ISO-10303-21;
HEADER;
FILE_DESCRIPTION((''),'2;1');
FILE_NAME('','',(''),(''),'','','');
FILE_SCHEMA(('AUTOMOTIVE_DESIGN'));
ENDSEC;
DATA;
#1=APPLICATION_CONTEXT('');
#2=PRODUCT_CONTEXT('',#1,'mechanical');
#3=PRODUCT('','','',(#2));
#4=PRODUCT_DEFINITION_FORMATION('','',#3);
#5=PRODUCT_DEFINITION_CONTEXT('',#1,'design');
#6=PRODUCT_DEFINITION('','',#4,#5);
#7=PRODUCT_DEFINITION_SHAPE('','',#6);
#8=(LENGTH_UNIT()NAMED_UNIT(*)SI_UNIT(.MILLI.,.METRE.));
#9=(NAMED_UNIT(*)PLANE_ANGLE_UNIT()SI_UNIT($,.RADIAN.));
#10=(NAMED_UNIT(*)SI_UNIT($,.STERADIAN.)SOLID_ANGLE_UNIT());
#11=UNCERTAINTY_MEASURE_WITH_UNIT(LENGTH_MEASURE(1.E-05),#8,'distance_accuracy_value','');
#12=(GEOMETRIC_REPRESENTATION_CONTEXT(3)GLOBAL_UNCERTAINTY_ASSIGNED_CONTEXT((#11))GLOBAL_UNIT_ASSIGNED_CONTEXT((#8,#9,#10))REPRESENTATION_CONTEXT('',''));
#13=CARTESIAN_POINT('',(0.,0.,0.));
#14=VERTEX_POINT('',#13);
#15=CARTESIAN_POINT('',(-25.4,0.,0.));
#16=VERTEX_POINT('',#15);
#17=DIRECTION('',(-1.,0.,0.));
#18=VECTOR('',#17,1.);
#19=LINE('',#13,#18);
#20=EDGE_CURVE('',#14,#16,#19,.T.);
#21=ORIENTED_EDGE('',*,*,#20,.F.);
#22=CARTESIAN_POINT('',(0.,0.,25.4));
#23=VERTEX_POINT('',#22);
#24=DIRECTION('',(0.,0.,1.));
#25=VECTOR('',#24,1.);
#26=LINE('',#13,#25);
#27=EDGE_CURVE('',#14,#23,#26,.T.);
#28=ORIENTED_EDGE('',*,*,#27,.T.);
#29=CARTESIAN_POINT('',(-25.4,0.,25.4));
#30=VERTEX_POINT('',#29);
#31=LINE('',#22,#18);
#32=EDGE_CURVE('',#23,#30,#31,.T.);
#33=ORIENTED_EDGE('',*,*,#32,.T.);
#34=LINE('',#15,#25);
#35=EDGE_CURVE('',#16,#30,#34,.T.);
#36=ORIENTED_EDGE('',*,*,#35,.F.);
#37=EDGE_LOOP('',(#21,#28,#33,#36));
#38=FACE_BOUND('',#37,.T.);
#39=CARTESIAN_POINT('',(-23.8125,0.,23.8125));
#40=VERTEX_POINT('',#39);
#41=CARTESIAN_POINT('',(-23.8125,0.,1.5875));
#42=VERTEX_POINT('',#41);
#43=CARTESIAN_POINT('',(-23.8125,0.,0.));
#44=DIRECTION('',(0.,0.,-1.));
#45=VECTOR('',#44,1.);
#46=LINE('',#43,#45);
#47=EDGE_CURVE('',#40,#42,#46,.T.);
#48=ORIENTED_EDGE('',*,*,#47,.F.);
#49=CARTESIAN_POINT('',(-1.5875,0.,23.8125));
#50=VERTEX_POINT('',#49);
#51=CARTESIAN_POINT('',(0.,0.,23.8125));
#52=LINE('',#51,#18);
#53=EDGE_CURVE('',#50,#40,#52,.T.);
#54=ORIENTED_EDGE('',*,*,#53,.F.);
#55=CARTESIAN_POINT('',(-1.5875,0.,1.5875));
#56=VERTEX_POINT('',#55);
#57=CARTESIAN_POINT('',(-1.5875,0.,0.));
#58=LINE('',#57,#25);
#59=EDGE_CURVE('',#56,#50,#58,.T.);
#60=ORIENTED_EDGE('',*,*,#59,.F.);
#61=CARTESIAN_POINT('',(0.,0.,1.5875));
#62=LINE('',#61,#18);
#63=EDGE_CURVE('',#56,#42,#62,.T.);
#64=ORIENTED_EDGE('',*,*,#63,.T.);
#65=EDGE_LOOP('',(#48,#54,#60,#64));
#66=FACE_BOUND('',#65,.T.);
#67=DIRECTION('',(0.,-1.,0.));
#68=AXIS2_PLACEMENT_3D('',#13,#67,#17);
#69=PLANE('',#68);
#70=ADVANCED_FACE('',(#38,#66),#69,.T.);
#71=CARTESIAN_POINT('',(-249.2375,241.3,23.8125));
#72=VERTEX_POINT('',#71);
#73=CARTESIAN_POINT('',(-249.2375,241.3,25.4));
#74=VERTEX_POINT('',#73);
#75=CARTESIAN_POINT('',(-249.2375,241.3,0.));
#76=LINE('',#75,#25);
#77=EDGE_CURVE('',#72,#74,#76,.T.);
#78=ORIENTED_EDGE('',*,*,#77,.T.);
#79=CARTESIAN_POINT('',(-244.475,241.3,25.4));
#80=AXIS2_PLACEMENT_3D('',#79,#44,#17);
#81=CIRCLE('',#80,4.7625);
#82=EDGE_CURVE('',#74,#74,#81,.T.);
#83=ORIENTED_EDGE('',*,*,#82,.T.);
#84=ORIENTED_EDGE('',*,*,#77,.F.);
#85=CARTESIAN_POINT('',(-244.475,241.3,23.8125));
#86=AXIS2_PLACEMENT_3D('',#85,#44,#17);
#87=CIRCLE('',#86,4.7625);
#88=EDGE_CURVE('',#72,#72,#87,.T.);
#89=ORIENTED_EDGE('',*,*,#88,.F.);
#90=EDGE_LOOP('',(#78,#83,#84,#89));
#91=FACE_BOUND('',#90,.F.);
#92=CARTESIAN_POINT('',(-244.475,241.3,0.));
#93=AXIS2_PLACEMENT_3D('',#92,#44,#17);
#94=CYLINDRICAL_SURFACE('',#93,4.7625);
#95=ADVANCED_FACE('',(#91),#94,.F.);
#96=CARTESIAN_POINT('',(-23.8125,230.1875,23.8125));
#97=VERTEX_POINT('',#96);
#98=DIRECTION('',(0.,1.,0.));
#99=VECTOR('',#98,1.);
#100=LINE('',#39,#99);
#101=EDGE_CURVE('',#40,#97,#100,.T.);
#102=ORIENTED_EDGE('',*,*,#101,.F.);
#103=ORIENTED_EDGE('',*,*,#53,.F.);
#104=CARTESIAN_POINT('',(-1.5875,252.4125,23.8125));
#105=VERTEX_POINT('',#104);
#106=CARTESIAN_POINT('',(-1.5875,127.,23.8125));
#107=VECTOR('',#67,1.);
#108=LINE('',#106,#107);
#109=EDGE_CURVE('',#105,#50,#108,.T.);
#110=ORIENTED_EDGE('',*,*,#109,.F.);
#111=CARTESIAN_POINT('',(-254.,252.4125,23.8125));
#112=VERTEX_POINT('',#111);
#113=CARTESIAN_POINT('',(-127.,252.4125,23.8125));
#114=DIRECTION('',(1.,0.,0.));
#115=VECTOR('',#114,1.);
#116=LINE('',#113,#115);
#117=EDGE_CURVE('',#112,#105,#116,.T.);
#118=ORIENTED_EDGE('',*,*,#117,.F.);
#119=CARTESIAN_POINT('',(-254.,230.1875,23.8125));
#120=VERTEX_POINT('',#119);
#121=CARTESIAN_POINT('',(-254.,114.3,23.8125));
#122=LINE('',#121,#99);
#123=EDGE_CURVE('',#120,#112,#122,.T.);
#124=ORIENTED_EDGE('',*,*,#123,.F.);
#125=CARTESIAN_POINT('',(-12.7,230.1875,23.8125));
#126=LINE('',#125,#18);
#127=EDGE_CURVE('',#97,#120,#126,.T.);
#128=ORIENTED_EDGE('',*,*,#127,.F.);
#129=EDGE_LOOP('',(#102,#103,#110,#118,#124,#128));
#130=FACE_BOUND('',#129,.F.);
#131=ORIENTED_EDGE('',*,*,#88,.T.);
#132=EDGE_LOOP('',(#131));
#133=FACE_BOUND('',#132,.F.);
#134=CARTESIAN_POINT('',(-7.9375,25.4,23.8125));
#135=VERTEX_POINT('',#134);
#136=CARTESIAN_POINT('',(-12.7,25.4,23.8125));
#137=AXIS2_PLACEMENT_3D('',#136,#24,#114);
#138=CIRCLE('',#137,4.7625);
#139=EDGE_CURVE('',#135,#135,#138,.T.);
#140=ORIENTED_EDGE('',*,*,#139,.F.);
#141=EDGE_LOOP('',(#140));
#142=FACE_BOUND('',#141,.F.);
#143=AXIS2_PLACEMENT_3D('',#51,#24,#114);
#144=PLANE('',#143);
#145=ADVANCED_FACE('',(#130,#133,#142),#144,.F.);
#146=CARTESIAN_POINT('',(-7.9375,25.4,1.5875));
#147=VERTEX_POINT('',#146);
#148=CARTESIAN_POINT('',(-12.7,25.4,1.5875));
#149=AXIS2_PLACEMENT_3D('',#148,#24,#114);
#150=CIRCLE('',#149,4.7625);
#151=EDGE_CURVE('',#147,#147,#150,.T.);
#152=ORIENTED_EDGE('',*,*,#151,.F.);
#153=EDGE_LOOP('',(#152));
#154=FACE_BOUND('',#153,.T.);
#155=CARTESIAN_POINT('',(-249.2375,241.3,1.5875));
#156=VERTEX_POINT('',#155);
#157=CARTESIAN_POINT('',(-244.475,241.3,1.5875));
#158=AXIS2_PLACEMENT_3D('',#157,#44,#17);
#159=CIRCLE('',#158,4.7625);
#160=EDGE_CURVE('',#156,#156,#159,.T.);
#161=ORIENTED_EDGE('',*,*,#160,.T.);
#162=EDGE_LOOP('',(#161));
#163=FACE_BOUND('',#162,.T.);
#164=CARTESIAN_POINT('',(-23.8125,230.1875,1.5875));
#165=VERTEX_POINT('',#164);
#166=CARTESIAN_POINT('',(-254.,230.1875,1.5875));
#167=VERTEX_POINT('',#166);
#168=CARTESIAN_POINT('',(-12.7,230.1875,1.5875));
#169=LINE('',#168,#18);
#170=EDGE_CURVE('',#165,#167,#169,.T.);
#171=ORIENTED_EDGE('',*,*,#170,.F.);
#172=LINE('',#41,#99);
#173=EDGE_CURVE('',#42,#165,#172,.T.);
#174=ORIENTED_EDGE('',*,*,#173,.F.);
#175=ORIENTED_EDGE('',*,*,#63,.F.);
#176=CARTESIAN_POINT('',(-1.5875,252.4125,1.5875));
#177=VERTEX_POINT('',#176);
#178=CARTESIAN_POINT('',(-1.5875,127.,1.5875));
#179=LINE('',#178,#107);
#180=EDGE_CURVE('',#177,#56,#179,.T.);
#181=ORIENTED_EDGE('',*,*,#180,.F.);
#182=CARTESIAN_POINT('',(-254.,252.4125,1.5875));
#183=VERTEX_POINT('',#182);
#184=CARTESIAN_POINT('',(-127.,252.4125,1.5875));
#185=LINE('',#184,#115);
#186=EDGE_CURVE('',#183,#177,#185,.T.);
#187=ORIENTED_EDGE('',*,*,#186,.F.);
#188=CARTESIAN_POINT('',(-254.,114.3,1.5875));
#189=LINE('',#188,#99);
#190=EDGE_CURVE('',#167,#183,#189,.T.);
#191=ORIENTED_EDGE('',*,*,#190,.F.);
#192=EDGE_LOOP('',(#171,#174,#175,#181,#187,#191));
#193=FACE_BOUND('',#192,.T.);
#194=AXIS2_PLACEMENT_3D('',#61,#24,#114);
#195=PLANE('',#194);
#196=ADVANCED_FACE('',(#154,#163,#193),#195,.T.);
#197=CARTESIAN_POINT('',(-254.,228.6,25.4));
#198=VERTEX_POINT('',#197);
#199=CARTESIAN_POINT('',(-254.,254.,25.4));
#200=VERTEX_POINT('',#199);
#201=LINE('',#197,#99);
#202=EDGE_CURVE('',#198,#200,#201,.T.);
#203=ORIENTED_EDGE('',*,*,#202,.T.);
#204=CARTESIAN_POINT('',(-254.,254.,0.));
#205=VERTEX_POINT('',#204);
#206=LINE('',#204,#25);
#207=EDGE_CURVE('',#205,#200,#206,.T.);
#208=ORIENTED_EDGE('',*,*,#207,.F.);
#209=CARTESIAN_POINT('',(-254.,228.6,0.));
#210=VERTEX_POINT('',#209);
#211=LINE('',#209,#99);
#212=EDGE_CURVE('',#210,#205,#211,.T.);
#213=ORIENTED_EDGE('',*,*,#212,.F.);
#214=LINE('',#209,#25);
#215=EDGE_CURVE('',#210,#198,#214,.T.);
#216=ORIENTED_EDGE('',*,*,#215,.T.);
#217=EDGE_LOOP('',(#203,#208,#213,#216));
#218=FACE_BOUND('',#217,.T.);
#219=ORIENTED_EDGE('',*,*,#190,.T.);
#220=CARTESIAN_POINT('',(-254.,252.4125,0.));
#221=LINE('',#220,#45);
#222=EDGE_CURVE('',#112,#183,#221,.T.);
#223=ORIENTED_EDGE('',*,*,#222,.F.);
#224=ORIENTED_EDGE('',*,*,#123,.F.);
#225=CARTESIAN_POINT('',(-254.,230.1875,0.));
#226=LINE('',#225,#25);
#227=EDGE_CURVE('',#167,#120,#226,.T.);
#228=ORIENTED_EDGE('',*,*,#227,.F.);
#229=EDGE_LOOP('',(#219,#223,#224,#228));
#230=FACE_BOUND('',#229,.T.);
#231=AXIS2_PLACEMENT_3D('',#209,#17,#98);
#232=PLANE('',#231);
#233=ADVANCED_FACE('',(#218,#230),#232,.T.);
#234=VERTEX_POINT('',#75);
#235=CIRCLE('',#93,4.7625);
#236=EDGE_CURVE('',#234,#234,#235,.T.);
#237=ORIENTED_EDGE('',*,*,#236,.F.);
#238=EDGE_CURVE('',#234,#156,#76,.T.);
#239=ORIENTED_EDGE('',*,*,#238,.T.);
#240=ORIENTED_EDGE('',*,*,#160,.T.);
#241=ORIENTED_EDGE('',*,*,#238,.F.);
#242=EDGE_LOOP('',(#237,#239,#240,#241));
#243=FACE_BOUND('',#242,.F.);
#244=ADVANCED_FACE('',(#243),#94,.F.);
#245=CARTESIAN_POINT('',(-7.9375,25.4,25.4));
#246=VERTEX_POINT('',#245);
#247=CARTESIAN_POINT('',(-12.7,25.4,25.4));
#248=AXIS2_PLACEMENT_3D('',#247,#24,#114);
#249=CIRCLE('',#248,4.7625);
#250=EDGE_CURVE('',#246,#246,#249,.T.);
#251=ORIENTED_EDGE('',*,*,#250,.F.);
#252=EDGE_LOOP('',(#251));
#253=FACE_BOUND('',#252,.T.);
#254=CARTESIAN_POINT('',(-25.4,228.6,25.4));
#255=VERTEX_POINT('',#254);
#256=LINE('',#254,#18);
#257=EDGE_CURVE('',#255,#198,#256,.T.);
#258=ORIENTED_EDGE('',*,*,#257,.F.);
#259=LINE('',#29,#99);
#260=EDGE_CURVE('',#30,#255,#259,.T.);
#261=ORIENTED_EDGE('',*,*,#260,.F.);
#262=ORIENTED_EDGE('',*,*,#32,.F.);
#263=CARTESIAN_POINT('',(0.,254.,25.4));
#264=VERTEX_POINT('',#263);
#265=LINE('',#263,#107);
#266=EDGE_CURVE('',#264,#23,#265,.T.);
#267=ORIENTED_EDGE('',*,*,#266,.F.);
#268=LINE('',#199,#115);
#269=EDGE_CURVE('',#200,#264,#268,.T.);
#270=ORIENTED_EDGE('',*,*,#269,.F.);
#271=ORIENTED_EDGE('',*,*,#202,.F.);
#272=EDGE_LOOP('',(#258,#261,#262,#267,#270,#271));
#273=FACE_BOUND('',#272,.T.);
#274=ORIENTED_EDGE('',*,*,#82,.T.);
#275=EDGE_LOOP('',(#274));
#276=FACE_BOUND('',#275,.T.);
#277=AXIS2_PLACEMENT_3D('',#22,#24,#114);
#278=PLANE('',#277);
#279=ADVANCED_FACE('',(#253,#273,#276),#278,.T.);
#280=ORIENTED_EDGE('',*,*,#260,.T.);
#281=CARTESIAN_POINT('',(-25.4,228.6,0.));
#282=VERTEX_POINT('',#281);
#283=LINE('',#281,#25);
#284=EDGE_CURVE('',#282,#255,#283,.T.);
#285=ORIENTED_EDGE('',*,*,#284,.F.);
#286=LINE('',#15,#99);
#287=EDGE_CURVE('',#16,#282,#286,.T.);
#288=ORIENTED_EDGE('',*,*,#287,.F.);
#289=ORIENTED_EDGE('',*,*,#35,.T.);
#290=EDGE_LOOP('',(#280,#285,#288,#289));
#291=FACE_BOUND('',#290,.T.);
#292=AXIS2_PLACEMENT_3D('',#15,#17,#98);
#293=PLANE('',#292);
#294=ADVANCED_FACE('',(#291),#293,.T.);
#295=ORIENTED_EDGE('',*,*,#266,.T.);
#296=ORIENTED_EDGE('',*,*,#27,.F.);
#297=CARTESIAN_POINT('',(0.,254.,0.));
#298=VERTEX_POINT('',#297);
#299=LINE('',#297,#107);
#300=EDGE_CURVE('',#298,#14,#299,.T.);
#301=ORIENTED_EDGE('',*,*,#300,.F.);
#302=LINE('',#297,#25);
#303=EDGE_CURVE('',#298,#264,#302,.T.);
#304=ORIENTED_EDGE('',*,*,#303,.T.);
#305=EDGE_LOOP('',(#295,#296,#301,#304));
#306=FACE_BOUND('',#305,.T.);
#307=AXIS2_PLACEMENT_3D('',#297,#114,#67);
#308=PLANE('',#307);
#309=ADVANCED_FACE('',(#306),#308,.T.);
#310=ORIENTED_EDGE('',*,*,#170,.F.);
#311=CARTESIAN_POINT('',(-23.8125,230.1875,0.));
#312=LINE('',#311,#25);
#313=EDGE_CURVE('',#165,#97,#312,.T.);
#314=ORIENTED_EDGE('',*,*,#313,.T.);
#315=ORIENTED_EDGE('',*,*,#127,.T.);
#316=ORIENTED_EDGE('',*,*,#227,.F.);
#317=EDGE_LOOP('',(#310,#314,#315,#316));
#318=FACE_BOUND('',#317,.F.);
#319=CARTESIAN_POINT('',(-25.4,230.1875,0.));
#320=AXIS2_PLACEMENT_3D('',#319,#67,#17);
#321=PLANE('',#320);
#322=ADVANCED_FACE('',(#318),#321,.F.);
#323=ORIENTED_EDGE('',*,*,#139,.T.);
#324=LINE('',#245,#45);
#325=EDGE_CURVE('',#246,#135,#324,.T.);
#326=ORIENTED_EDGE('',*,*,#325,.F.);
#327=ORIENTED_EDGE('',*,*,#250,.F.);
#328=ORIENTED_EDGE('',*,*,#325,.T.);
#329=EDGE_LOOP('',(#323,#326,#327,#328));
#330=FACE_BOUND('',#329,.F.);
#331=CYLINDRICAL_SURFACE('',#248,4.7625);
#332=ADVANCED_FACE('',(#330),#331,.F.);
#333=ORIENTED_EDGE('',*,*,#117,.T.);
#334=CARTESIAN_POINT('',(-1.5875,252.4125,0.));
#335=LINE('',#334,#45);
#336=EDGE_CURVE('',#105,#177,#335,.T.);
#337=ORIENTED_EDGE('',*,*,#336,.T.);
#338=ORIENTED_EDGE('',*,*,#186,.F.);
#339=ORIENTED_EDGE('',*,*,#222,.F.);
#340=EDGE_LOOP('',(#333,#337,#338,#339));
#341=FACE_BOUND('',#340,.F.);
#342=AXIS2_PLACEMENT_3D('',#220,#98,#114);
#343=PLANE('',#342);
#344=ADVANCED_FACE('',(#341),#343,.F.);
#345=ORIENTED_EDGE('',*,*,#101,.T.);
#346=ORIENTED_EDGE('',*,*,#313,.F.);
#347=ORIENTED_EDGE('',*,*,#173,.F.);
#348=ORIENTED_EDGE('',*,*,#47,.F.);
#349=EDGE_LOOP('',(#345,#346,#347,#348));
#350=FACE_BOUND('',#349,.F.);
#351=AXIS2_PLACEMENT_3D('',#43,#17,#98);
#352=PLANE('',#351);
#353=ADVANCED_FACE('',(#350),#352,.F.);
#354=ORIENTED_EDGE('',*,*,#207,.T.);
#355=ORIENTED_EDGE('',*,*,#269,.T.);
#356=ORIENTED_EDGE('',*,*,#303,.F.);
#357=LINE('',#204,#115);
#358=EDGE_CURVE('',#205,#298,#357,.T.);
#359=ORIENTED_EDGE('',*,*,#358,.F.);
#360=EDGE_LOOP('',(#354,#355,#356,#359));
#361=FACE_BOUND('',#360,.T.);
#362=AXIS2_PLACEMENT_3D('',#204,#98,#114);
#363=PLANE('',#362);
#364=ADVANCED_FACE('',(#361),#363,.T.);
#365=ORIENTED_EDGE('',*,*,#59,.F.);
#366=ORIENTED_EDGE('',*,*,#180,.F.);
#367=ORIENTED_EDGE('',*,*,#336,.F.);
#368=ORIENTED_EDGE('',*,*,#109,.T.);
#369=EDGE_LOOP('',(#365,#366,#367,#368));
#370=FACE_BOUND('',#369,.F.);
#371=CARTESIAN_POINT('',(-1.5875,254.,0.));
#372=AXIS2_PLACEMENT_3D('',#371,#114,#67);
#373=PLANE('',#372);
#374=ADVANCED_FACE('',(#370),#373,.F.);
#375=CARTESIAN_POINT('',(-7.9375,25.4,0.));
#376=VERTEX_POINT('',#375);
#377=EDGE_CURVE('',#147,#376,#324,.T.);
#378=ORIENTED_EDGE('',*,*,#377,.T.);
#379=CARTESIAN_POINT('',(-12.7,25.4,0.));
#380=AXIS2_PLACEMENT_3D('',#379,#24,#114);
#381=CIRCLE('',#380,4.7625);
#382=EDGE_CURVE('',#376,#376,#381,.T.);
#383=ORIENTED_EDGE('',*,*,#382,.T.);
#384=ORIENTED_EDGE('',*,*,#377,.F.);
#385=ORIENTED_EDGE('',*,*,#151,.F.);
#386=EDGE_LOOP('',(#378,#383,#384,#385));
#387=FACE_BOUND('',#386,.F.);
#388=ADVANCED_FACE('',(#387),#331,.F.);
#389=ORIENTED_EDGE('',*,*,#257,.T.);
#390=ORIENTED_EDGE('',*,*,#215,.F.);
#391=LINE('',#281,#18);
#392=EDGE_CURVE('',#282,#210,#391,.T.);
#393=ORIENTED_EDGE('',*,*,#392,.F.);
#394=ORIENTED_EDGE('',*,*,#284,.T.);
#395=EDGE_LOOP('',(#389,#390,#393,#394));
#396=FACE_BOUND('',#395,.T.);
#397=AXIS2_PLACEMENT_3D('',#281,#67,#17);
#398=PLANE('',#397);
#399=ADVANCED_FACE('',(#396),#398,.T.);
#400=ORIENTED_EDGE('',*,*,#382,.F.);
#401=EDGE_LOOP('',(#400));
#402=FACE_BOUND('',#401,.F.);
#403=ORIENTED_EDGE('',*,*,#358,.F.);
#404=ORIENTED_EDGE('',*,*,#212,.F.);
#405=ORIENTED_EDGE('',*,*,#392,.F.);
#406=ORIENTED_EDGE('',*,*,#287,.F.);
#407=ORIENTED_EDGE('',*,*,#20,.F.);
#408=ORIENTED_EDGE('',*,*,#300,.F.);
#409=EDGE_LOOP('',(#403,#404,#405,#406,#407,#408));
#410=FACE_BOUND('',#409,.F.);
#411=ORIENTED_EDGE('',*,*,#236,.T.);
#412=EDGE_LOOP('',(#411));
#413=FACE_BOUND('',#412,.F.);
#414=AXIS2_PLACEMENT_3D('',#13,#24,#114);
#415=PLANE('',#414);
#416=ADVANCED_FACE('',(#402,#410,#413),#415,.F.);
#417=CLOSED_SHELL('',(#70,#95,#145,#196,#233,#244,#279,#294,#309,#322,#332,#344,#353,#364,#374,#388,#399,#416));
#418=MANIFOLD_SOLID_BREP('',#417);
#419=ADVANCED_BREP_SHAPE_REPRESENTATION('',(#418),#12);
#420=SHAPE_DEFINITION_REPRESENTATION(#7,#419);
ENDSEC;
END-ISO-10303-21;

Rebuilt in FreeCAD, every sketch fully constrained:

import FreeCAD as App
import Part
import Sketcher

V = App.Vector
Q = App.Units.Quantity


def faces_at(feature, points):
    """Names of the faces that lie closest to the given points."""
    faces = feature.Shape.Faces
    near = lambda p: min(range(len(faces)), key=lambda i: faces[i].distToShape(Part.Vertex(*p))[0])
    return sorted({f"Face{near(p) + 1}" for p in points})

doc = App.newDocument("Part")
body = doc.addObject("PartDesign::Body", "Body")

sketch1 = doc.addObject("Sketcher::SketchObject", "Sketch")
body.addObject(sketch1)
sketch1.AttachmentSupport = (doc.XY_Plane, [""])
sketch1.MapMode = "FlatFace"
sketch1.addGeometry(Part.LineSegment(V(-25, 0, 0), V(0, 0, 0)), False)
sketch1.addGeometry(Part.LineSegment(V(0, 0, 0), V(0, 254, 0)), False)
sketch1.addGeometry(Part.LineSegment(V(0, 254, 0), V(-254, 254, 0)), False)
sketch1.addGeometry(Part.LineSegment(V(-254, 254, 0), V(-254, 229, 0)), False)
sketch1.addGeometry(Part.LineSegment(V(-254, 229, 0), V(-25, 229, 0)), False)
sketch1.addGeometry(Part.LineSegment(V(-25, 229, 0), V(-25, 0, 0)), False)
sketch1.addConstraint(Sketcher.Constraint("Coincident", 0, 2, 1, 1))
sketch1.addConstraint(Sketcher.Constraint("Coincident", 1, 2, 2, 1))
sketch1.addConstraint(Sketcher.Constraint("Coincident", 2, 2, 3, 1))
sketch1.addConstraint(Sketcher.Constraint("Coincident", 3, 2, 4, 1))
sketch1.addConstraint(Sketcher.Constraint("Coincident", 4, 2, 5, 1))
sketch1.addConstraint(Sketcher.Constraint("Coincident", 5, 2, 0, 1))
sketch1.addConstraint(Sketcher.Constraint("Horizontal", 0))
sketch1.addConstraint(Sketcher.Constraint("Vertical", 1))
sketch1.addConstraint(Sketcher.Constraint("Horizontal", 2))
sketch1.addConstraint(Sketcher.Constraint("Vertical", 3))
sketch1.addConstraint(Sketcher.Constraint("Horizontal", 4))
sketch1.addConstraint(Sketcher.Constraint("Vertical", 5))
sketch1.addConstraint(Sketcher.Constraint("Coincident", 0, 2, -1, 1))
sketch1.addConstraint(Sketcher.Constraint("Equal", 2, 1))
sketch1.addConstraint(Sketcher.Constraint("Equal", 0, 3))
sketch1.addConstraint(Sketcher.Constraint("DistanceX", 0, 1, 0, 2, Q("1 in")))
sketch1.addConstraint(Sketcher.Constraint("DistanceX", 2, 2, 2, 1, Q("10 in")))
pad1 = doc.addObject("PartDesign::Pad", "Pad")
body.addObject(pad1)
pad1.Profile = sketch1
pad1.Length = Q("1 in")
doc.recompute()

thickness = doc.addObject("PartDesign::Thickness", "Thickness")
body.addObject(thickness)
thickness.Base = (pad1, faces_at(pad1, [(-8.467, 0, 8.467), (-254, 237.067, 8.467)]))
thickness.Value = Q("0.0625 in")
thickness.Reversed = True
thickness.Join = "Intersection"

sketch2 = doc.addObject("Sketcher::SketchObject", "Sketch001")
body.addObject(sketch2)
sketch2.AttachmentSupport = (doc.XY_Plane, [""])
sketch2.MapMode = "FlatFace"
sketch2.AttachmentOffset = App.Placement(V(0, 0, 1 * 25.4), App.Rotation())
sketch2.addGeometry(Part.Circle(V(-12.7, 25.4, 0), V(0, 0, 1), 4.8), False)
sketch2.addConstraint(Sketcher.Constraint("Diameter", 0, Q("0.375 in")))
sketch2.addConstraint(Sketcher.Constraint("DistanceY", -1, 1, 0, 3, Q("1 in")))
sketch2.addConstraint(Sketcher.Constraint("DistanceX", 0, 3, -1, 1, Q("0.5 in")))
pocket1 = doc.addObject("PartDesign::Pocket", "Pocket")
body.addObject(pocket1)
pocket1.Profile = sketch2
pocket1.Type = "ThroughAll"

sketch3 = doc.addObject("Sketcher::SketchObject", "Sketch002")
body.addObject(sketch3)
sketch3.AttachmentSupport = (doc.XY_Plane, [""])
sketch3.MapMode = "FlatFace"
sketch3.addGeometry(Part.Circle(V(-244.5, 241.3, 0), V(0, 0, 1), 4.8), False)
sketch3.addConstraint(Sketcher.Constraint("Diameter", 0, Q("0.375 in")))
sketch3.addConstraint(Sketcher.Constraint("DistanceY", -1, 1, 0, 3, Q("9.5 in")))
sketch3.addConstraint(Sketcher.Constraint("DistanceX", 0, 3, -1, 1, Q("9.625 in")))
pocket2 = doc.addObject("PartDesign::Pocket", "Pocket001")
body.addObject(pocket2)
pocket2.Profile = sketch3
pocket2.Type = "ThroughAll"
pocket2.Reversed = True

doc.recompute()
